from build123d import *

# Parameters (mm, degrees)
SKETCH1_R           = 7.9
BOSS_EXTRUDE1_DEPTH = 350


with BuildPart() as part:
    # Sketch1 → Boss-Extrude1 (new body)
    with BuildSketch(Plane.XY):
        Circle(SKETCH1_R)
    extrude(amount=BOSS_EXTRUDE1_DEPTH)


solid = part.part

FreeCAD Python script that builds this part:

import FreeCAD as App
import Part
import Sketcher

V = App.Vector

doc = App.newDocument("Part")
params = doc.addObject("Spreadsheet::Sheet", "Params")
for row, (alias, value) in enumerate([
    ("sketch1_diameter", "15.8 mm"),
    ("pad1_length", "350 mm"),
], start=1):
    params.set(f"A{row}", alias)
    params.set(f"B{row}", "=" + value)
    params.setAlias(f"B{row}", alias)

body = doc.addObject("PartDesign::Body", "Body")

# Sketch on XY plane
sketch1 = doc.addObject("Sketcher::SketchObject", "Sketch")
body.addObject(sketch1)
sketch1.AttachmentSupport = (doc.XY_Plane, [""])
sketch1.MapMode = "FlatFace"
sketch1.addGeometry(Part.Circle(V(0, 0, 0), V(0, 0, 1), 8), False)
sketch1.addConstraint([
    Sketcher.Constraint("Coincident", 0, 3, -1, 1),
    Sketcher.Constraint("Diameter", 0, 15.8),
])
sketch1.setExpression("Constraints[1]", "Params.sketch1_diameter")
pad1 = doc.addObject("PartDesign::Pad", "Pad")
body.addObject(pad1)
pad1.Profile = sketch1
pad1.setExpression("Length", "Params.pad1_length")

doc.recompute()
